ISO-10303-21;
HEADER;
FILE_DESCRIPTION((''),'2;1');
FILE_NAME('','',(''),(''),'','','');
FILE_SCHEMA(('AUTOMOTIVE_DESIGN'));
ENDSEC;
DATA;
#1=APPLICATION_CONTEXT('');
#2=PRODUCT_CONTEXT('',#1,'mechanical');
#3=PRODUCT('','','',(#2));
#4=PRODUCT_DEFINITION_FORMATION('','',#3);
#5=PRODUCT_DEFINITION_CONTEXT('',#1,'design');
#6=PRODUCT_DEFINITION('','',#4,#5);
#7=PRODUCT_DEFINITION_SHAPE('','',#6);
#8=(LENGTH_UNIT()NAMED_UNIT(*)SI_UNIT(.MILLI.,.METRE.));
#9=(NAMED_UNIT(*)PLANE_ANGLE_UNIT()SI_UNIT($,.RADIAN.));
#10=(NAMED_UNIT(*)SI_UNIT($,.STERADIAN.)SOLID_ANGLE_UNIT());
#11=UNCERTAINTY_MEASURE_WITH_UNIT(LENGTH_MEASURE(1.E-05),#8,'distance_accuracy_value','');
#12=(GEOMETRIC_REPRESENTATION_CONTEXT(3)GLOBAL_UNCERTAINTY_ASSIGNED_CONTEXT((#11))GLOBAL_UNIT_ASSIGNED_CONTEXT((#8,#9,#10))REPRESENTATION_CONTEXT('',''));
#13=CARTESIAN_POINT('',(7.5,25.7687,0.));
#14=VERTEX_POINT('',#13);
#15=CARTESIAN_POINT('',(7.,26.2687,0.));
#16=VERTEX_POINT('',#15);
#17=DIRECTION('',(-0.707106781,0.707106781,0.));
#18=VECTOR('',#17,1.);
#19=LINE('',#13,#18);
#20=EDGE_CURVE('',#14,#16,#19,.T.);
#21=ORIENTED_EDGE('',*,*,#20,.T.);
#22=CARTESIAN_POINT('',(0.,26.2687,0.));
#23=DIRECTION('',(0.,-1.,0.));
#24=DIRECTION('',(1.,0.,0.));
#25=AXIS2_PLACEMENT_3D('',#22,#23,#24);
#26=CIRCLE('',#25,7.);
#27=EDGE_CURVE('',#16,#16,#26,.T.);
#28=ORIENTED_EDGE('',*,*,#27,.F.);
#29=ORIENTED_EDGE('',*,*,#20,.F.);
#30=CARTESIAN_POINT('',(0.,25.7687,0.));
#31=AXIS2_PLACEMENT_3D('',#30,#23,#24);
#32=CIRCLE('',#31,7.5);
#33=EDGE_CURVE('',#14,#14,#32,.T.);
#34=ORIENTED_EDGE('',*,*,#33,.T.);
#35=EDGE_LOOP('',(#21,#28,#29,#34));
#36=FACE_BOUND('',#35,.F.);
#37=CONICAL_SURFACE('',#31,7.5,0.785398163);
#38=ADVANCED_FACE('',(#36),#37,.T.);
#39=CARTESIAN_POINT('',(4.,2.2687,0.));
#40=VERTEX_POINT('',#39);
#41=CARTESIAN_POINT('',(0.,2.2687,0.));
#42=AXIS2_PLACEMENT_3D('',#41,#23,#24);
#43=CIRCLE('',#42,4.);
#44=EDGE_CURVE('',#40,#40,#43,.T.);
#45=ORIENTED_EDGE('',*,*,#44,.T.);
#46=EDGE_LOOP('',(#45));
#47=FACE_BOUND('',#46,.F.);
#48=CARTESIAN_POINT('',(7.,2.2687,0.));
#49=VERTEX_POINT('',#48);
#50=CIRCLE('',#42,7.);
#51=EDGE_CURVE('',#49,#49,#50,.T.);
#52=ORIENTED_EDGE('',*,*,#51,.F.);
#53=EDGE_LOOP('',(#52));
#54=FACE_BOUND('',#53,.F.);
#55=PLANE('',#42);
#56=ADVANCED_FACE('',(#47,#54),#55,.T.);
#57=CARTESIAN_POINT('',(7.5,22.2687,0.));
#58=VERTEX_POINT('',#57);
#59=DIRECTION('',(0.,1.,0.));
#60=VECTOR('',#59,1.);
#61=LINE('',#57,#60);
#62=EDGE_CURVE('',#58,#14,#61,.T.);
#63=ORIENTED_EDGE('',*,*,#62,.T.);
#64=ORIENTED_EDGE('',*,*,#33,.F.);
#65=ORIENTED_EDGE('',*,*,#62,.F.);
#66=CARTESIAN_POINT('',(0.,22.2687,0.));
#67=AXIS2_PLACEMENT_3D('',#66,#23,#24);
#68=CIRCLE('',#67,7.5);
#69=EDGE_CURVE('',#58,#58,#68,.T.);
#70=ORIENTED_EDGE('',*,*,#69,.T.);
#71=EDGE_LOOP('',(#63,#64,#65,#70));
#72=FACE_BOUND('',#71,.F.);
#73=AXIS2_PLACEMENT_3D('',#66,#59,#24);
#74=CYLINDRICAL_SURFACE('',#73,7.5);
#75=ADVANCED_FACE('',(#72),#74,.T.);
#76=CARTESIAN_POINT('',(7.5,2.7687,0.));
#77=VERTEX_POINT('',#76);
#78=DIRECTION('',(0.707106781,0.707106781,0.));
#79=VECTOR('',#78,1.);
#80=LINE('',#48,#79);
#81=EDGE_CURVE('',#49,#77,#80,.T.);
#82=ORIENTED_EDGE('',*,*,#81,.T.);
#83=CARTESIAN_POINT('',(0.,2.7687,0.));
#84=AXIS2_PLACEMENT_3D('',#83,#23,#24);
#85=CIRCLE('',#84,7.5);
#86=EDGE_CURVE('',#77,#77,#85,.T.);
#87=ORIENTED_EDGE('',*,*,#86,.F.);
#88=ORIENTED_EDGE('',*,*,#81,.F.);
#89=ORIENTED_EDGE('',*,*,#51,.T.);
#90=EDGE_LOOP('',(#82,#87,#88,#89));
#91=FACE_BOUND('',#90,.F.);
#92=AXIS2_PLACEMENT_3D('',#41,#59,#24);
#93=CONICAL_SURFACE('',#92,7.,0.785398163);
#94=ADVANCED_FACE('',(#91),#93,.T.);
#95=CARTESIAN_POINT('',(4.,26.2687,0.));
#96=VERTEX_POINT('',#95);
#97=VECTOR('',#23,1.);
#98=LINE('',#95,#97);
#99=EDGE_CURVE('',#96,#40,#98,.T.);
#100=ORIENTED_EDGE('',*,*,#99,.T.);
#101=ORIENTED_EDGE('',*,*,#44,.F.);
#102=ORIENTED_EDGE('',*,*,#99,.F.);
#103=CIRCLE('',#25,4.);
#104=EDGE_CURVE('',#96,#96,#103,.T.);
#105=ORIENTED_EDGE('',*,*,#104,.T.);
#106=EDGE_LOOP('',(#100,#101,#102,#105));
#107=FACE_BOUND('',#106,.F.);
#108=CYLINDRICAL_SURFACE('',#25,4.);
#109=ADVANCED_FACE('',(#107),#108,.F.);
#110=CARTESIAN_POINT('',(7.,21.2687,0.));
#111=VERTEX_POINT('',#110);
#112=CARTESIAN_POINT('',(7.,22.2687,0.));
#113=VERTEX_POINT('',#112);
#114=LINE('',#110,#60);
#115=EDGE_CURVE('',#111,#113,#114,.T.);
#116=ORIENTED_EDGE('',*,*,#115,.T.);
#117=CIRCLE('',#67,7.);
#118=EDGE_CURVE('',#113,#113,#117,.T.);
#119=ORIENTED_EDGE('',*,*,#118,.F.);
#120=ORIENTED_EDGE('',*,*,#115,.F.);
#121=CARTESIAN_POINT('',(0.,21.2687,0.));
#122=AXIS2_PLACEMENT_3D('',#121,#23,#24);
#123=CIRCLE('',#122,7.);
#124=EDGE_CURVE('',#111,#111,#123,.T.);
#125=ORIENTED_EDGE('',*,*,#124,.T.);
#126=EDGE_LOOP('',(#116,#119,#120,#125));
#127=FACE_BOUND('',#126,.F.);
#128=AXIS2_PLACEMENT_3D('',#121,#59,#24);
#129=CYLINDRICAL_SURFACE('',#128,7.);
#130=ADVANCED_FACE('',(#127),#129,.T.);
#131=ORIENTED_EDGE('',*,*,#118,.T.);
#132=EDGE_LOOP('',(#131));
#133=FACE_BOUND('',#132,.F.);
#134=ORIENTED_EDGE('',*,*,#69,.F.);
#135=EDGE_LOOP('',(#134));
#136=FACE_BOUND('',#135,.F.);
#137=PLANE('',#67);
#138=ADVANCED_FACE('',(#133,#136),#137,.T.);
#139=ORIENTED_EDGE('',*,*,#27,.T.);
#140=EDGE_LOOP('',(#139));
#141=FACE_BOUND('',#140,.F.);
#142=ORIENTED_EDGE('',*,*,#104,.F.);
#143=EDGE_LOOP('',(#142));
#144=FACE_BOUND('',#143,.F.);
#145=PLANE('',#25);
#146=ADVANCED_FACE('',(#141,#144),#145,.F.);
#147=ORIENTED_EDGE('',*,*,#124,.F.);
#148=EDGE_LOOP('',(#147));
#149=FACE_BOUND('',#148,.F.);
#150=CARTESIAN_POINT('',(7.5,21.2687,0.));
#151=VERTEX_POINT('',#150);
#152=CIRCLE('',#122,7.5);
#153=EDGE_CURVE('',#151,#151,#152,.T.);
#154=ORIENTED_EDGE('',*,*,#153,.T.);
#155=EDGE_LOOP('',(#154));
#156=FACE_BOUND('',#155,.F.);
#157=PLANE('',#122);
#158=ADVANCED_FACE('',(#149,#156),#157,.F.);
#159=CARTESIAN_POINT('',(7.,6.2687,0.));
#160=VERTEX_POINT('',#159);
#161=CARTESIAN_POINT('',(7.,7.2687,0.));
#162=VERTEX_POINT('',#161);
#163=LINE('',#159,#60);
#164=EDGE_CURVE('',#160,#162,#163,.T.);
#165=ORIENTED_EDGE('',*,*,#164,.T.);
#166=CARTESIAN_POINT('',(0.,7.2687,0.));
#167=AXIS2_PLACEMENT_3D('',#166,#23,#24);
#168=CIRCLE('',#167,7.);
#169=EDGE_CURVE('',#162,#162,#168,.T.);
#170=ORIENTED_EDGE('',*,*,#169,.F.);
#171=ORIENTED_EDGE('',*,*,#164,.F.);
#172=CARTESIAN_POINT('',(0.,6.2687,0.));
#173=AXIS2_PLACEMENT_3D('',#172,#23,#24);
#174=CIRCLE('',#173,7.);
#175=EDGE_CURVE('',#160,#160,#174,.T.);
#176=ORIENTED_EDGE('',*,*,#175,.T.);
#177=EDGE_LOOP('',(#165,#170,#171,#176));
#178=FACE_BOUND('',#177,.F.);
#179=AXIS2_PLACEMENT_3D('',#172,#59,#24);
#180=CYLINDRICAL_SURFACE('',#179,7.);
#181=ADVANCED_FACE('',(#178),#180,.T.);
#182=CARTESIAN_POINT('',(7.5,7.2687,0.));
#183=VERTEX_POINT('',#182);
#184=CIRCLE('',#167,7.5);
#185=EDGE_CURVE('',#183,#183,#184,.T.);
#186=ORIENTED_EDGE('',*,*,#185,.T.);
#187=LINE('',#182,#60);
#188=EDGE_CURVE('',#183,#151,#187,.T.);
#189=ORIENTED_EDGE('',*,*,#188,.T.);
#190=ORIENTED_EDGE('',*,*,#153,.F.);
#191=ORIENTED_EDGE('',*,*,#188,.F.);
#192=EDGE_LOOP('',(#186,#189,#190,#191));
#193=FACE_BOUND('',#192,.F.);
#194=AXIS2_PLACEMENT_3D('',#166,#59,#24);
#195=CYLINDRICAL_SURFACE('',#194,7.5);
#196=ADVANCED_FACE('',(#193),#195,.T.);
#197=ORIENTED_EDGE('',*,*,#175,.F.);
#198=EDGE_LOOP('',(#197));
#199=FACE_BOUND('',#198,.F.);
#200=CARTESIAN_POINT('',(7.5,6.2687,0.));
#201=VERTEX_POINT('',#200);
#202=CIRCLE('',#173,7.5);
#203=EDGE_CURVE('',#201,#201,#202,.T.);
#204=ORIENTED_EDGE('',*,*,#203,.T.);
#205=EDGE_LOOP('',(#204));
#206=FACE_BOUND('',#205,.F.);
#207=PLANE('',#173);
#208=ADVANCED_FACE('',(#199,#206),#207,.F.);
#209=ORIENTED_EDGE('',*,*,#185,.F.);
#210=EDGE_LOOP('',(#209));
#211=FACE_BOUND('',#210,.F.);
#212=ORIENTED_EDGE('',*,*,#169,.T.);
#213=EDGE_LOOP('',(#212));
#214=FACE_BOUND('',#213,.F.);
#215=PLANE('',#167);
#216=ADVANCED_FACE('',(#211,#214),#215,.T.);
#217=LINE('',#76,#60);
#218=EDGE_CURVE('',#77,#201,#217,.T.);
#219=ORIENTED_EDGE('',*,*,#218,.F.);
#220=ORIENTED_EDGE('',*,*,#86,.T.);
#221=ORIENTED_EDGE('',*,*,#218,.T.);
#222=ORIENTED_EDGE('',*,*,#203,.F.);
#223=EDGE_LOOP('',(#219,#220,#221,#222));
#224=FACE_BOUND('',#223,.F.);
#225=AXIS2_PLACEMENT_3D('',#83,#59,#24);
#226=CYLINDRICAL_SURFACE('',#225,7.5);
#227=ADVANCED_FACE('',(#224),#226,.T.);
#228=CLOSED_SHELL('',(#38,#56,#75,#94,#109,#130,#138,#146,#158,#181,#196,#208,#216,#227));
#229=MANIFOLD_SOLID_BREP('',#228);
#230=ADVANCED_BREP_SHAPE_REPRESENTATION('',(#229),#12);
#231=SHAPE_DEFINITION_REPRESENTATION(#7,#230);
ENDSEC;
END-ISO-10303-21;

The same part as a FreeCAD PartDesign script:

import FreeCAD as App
import Part
import Sketcher

V = App.Vector

doc = App.newDocument("Part")
body = doc.addObject("PartDesign::Body", "Body")

sketch1 = body.newObject("Sketcher::SketchObject", "Sketch")
sketch1.AttachmentSupport = (doc.getObject("XY_Plane"), [""])
sketch1.MapMode = "FlatFace"
sketch1.addGeometry([
    Part.LineSegment(V(7, 26.3, 0), V(4, 26.3, 0)),
    Part.LineSegment(V(4, 26.3, 0), V(4, 2.3, 0)),
    Part.LineSegment(V(4, 2.3, 0), V(7, 2.3, 0)),
    Part.LineSegment(V(7, 2.3, 0), V(7.5, 2.8, 0)),
    Part.LineSegment(V(7.5, 2.8, 0), V(7.5, 6.3, 0)),
    Part.LineSegment(V(7.5, 6.3, 0), V(7, 6.3, 0)),
    Part.LineSegment(V(7, 6.3, 0), V(7, 7.3, 0)),
    Part.LineSegment(V(7, 7.3, 0), V(7.5, 7.3, 0)),
    Part.LineSegment(V(7.5, 7.3, 0), V(7.5, 21.3, 0)),
    Part.LineSegment(V(7.5, 21.3, 0), V(7, 21.3, 0)),
    Part.LineSegment(V(7, 21.3, 0), V(7, 22.3, 0)),
    Part.LineSegment(V(7, 22.3, 0), V(7.5, 22.3, 0)),
    Part.LineSegment(V(7.5, 22.3, 0), V(7.5, 25.8, 0)),
    Part.LineSegment(V(7.5, 25.8, 0), V(7, 26.3, 0)),
], False)
sketch1.addConstraint([
    Sketcher.Constraint("Coincident", 0, 2, 1, 1),
    Sketcher.Constraint("Coincident", 1, 2, 2, 1),
    Sketcher.Constraint("Coincident", 2, 2, 3, 1),
    Sketcher.Constraint("Coincident", 3, 2, 4, 1),
    Sketcher.Constraint("Coincident", 4, 2, 5, 1),
    Sketcher.Constraint("Coincident", 5, 2, 6, 1),
    Sketcher.Constraint("Coincident", 6, 2, 7, 1),
    Sketcher.Constraint("Coincident", 7, 2, 8, 1),
    Sketcher.Constraint("Coincident", 8, 2, 9, 1),
    Sketcher.Constraint("Coincident", 9, 2, 10, 1),
    Sketcher.Constraint("Coincident", 10, 2, 11, 1),
    Sketcher.Constraint("Coincident", 11, 2, 12, 1),
    Sketcher.Constraint("Coincident", 12, 2, 13, 1),
    Sketcher.Constraint("Coincident", 13, 2, 0, 1),
    Sketcher.Constraint("Horizontal", 0),
    Sketcher.Constraint("Vertical", 1),
    Sketcher.Constraint("Horizontal", 2),
    Sketcher.Constraint("Vertical", 4),
    Sketcher.Constraint("Horizontal", 5),
    Sketcher.Constraint("Vertical", 6),
    Sketcher.Constraint("Horizontal", 7),
    Sketcher.Constraint("Vertical", 8),
    Sketcher.Constraint("Horizontal", 9),
    Sketcher.Constraint("Vertical", 10),
    Sketcher.Constraint("Horizontal", 11),
    Sketcher.Constraint("Vertical", 12),
    Sketcher.Constraint("Perpendicular", 3, 13),
    Sketcher.Constraint("Vertical", 2, 2, 5, 2),
    Sketcher.Constraint("Vertical", 4, 2, 7, 2),
    Sketcher.Constraint("Vertical", 6, 2, 9, 2),
    Sketcher.Constraint("Vertical", 8, 2, 11, 2),
    Sketcher.Constraint("Vertical", 10, 2, 13, 2),
    Sketcher.Constraint("Equal", 6, 10),
    Sketcher.Constraint("Equal", 4, 12),
    Sketcher.Constraint("Equal", 3, 13),
    Sketcher.Constraint("DistanceY", 1, 2, 1, 1, 24.0),
    Sketcher.Constraint("DistanceY", 6, 1, 6, 2, 1.0),
    Sketcher.Constraint("DistanceX", 5, 2, 5, 1, 0.5),
    Sketcher.Constraint("DistanceX", -1, 1, 0, 2, 4.0),
    Sketcher.Constraint("DistanceY", 2, 2, 4, 2, 4.0),
    Sketcher.Constraint("DistanceX", 0, 2, 0, 1, 3.0),
    Sketcher.Constraint("DistanceY", -1, 1, 0, 2, 26.2687),
])
revolution = body.newObject("PartDesign::Revolution", "Revolution")
revolution.Profile = sketch1
revolution.ReferenceAxis = (sketch1, ["V_Axis"])
revolution.Angle = 360

doc.recompute()
